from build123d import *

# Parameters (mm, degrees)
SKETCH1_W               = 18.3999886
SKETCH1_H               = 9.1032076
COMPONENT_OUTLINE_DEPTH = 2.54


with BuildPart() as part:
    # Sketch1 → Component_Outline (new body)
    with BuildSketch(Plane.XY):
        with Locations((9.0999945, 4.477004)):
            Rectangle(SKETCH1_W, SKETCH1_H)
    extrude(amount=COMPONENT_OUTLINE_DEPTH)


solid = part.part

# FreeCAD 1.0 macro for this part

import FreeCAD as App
import Part
import Sketcher

V = App.Vector
Q = App.Units.Quantity

doc = App.newDocument("Part")
body = doc.addObject("PartDesign::Body", "Body")

sketch1 = body.newObject("Sketcher::SketchObject", "Sketch")
sketch1.AttachmentSupport = (doc.getObject("XY_Plane"), [""])
sketch1.MapMode = "FlatFace"
sketch1.addGeometry([
    Part.LineSegment(V(0, 9, 0), V(0, 0, 0)),
    Part.LineSegment(V(0, 0, 0), V(18, 0, 0)),
    Part.LineSegment(V(18, 0, 0), V(18, 9, 0)),
    Part.LineSegment(V(18, 9, 0), V(0, 9, 0)),
], False)
sketch1.addConstraint([
    Sketcher.Constraint("Coincident", 0, 2, 1, 1),
    Sketcher.Constraint("Coincident", 1, 2, 2, 1),
    Sketcher.Constraint("Coincident", 2, 2, 3, 1),
    Sketcher.Constraint("Coincident", 3, 2, 0, 1),
    Sketcher.Constraint("Vertical", 0),
    Sketcher.Constraint("Horizontal", 1),
    Sketcher.Constraint("Vertical", 2),
    Sketcher.Constraint("Horizontal", 3),
    Sketcher.Constraint("DistanceX", 1, 1, 1, 2, Q("18.399989 mm")),
    Sketcher.Constraint("DistanceX", 0, 2, -1, 1, Q("0.1 mm")),
    Sketcher.Constraint("DistanceY", 0, 2, -1, 1, Q("0.0746 mm")),
    Sketcher.Constraint("DistanceY", 0, 2, 0, 1, Q("9.103208 mm")),
])
pad1 = body.newObject("PartDesign::Pad", "Pad")
pad1.Profile = sketch1
pad1.Length = Q("0.1 in")

doc.recompute()
